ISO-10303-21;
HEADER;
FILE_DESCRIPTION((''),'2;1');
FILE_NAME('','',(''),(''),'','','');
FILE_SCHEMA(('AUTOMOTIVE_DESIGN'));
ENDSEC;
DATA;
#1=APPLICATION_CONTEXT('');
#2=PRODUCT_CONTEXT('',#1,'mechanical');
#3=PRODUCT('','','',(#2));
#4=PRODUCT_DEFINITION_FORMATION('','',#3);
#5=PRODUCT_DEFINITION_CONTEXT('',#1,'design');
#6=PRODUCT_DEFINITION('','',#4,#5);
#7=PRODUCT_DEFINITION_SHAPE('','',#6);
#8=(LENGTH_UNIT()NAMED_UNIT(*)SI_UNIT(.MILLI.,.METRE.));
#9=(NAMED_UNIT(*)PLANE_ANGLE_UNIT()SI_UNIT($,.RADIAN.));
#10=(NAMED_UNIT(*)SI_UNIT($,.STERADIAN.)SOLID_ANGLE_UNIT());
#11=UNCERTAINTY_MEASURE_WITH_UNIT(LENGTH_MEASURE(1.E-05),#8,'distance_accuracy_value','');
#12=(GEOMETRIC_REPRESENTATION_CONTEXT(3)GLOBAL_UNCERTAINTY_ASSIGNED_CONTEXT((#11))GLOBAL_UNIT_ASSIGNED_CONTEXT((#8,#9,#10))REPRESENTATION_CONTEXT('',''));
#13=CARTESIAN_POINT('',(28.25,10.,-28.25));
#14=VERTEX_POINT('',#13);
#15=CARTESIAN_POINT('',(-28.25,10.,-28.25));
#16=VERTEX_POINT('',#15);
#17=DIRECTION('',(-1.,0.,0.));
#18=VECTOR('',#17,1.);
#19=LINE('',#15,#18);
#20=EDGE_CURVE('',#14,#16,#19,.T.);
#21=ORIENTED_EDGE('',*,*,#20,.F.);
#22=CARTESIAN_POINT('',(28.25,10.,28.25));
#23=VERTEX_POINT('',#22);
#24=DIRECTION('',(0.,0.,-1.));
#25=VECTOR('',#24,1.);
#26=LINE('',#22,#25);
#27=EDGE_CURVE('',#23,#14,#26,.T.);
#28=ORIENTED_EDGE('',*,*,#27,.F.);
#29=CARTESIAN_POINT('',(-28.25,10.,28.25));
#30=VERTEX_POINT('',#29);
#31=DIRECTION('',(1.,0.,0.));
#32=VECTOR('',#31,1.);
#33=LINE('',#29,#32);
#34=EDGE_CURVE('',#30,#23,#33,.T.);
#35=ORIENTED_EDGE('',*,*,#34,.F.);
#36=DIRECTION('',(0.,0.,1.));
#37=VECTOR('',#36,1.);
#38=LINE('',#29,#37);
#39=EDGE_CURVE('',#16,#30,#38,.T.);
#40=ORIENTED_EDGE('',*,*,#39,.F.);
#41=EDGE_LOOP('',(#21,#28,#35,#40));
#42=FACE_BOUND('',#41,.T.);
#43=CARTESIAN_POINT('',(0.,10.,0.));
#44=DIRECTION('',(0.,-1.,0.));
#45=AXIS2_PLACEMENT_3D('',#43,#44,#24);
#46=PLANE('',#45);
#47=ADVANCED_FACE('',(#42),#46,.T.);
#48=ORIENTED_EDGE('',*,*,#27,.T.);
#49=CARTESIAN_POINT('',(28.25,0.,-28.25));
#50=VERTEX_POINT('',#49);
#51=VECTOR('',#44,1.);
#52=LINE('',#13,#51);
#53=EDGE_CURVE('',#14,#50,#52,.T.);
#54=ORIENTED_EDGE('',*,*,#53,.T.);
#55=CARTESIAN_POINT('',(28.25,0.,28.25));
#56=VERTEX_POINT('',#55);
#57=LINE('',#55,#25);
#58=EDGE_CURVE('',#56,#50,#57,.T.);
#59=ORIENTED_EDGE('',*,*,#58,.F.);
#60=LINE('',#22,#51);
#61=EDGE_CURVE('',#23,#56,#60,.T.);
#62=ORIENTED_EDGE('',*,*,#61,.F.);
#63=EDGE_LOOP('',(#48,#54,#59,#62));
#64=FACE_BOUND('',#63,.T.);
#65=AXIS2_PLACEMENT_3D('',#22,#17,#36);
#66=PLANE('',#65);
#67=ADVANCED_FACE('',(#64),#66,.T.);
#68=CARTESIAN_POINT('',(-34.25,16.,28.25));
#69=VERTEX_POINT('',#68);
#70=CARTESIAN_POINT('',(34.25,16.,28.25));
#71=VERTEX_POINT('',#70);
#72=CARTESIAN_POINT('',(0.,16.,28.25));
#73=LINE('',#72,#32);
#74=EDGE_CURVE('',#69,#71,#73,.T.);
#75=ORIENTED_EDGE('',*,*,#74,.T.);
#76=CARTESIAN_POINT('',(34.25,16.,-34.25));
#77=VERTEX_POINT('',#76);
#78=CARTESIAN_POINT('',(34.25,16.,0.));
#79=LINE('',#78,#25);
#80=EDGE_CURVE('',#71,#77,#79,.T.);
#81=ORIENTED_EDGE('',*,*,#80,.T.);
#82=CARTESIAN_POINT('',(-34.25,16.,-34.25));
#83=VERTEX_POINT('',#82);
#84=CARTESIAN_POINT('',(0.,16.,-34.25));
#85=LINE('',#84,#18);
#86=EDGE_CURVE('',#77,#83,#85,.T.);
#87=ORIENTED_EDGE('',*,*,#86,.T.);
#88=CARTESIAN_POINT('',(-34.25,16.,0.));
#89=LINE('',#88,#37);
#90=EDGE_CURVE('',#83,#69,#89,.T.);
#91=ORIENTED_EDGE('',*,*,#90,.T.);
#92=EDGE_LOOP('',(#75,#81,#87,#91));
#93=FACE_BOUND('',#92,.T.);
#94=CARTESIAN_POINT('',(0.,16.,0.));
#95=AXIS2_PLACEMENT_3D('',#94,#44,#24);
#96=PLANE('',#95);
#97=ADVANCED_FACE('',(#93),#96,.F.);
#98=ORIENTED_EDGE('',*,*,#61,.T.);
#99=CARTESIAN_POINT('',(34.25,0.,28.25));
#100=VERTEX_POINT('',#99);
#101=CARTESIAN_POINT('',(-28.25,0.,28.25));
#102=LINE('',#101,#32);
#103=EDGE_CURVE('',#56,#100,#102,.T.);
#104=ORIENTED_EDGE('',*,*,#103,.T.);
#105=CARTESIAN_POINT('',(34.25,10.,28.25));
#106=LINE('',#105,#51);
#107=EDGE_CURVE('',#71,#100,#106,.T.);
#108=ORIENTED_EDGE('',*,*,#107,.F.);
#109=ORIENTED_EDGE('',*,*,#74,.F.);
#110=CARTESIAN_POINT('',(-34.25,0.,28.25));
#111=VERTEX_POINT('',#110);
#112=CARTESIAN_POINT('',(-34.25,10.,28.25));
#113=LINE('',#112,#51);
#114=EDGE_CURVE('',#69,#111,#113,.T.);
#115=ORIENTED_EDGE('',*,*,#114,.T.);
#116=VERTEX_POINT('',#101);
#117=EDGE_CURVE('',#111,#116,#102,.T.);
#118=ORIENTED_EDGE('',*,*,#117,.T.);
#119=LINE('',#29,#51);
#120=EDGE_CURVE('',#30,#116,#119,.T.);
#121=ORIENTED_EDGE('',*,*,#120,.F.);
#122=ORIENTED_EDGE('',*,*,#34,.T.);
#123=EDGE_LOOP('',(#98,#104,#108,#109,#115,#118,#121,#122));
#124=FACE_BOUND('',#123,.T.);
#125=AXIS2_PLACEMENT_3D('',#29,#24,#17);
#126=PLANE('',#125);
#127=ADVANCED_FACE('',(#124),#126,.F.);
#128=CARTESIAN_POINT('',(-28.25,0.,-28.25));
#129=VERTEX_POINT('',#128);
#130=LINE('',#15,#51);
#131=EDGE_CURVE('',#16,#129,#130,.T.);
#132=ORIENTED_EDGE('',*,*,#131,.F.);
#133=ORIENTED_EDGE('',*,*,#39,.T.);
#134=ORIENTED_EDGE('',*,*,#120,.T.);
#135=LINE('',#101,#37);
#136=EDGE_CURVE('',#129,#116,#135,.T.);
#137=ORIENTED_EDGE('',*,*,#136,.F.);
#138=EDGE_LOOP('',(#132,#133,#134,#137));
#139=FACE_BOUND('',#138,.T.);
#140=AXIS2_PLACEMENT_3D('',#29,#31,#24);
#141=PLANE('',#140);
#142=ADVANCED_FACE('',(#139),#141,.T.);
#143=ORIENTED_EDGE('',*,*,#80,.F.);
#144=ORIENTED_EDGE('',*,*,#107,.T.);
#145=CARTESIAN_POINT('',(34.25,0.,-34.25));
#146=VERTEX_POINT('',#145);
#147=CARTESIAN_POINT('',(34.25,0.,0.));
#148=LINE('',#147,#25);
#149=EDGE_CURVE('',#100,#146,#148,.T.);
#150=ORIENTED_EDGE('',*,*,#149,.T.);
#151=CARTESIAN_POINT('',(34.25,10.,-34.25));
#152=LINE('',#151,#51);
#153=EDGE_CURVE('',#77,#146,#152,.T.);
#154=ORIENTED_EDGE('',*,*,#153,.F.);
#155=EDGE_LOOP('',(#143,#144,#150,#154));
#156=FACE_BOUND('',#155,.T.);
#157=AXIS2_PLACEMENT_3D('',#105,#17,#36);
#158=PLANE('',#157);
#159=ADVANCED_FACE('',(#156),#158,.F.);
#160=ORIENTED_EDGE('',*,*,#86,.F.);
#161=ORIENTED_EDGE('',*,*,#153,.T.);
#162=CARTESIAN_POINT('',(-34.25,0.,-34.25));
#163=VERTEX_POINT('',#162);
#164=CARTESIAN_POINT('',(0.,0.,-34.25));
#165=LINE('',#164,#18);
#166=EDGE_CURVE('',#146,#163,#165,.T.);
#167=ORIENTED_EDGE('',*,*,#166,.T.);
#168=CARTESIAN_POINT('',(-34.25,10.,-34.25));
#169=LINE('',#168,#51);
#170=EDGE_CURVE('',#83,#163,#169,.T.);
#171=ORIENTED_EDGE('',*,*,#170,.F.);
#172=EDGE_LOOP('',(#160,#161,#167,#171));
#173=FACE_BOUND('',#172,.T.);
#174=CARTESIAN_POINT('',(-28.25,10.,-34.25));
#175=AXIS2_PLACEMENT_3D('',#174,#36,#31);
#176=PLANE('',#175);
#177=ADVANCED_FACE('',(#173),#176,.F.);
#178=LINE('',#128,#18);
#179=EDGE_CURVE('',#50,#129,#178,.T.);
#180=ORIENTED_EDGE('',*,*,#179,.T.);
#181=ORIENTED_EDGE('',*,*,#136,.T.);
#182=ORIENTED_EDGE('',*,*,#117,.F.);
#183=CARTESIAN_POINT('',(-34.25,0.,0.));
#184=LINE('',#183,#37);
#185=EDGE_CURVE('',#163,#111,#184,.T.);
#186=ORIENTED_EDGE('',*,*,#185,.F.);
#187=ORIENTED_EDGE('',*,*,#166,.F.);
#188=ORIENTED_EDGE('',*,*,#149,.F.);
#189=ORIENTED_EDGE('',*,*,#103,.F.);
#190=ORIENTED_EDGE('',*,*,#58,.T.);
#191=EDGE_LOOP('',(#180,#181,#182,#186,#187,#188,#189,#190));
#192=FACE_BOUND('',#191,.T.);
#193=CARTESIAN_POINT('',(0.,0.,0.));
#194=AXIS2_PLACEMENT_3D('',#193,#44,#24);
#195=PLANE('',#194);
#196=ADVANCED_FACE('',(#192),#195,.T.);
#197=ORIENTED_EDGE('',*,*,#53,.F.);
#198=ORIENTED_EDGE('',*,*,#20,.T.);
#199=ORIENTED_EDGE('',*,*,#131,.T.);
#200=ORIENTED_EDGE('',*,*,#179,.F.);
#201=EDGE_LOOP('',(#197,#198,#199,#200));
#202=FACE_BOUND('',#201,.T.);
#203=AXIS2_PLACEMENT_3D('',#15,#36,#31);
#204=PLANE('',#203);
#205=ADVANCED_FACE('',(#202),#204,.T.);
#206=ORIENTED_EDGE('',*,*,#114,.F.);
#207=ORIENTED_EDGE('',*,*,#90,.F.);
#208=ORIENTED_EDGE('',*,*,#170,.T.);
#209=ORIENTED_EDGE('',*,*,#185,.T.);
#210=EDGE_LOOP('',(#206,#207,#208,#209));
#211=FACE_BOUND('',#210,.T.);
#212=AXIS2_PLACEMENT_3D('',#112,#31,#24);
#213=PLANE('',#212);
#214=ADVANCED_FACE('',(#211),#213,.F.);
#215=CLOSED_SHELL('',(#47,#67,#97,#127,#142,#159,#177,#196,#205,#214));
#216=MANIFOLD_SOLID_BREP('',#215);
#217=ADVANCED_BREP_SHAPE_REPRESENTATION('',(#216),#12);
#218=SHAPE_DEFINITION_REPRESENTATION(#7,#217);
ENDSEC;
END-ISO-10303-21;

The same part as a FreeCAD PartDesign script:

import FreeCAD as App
import Part
import Sketcher
from FreeCAD import Vector
Q = App.Units.Quantity


def faces_at(feature, points):
    """Names of the faces that lie closest to the given points."""
    faces = feature.Shape.Faces
    near = lambda p: min(range(len(faces)), key=lambda i: faces[i].distToShape(Part.Vertex(*p))[0])
    return sorted({f"Face{near(p) + 1}" for p in points})


def add_polygon(sketch, points):
    """Adds a closed chain of lines whose ends are joined by coincident constraints."""
    first, n = sketch.GeometryCount, len(points)
    for a, b in zip(points, points[1:] + points[:1]):
        sketch.addGeometry(Part.LineSegment(App.Vector(*a, 0), App.Vector(*b, 0)), False)
    for i in range(n):
        sketch.addConstraint(Sketcher.Constraint("Coincident", first + i, 2, first + (i + 1) % n, 1))

doc = App.newDocument("Part")
body = doc.addObject("PartDesign::Body", "Body")

# Sketch on XZ plane
sketch1 = body.newObject("Sketcher::SketchObject", "Sketch")
sketch1.AttachmentSupport = (doc.getObject("XZ_Plane"), [""])
sketch1.MapMode = "FlatFace"
add_polygon(sketch1, [(-28, -28), (-28, 28), (28, 28), (28, -28)])  # lines 0-3
sketch1.addConstraint(Sketcher.Constraint("Vertical", 0))
sketch1.addConstraint(Sketcher.Constraint("Horizontal", 1))
sketch1.addConstraint(Sketcher.Constraint("Vertical", 2))
sketch1.addConstraint(Sketcher.Constraint("Horizontal", 3))
sketch1.addConstraint(Sketcher.Constraint("Symmetric", 0, 2, 2, 2, -1, 1))
sketch1.addConstraint(Sketcher.Constraint("Equal", 3, 0))
sketch1.addConstraint(Sketcher.Constraint("DistanceX", 1, 1, 1, 2, Q("56.5 mm")))
pad1 = body.newObject("PartDesign::Pad", "Pad")
pad1.Profile = sketch1
pad1.Length = 10
pad1.Reversed = True
doc.recompute()

thickness = body.newObject("PartDesign::Thickness", "Thickness")
thickness.Base = (pad1, faces_at(pad1, [(0, 5, 28.25), (0, 0, 0)]))
thickness.Value = 6
thickness.Reversed = False
thickness.Join = "Intersection"

doc.recompute()
